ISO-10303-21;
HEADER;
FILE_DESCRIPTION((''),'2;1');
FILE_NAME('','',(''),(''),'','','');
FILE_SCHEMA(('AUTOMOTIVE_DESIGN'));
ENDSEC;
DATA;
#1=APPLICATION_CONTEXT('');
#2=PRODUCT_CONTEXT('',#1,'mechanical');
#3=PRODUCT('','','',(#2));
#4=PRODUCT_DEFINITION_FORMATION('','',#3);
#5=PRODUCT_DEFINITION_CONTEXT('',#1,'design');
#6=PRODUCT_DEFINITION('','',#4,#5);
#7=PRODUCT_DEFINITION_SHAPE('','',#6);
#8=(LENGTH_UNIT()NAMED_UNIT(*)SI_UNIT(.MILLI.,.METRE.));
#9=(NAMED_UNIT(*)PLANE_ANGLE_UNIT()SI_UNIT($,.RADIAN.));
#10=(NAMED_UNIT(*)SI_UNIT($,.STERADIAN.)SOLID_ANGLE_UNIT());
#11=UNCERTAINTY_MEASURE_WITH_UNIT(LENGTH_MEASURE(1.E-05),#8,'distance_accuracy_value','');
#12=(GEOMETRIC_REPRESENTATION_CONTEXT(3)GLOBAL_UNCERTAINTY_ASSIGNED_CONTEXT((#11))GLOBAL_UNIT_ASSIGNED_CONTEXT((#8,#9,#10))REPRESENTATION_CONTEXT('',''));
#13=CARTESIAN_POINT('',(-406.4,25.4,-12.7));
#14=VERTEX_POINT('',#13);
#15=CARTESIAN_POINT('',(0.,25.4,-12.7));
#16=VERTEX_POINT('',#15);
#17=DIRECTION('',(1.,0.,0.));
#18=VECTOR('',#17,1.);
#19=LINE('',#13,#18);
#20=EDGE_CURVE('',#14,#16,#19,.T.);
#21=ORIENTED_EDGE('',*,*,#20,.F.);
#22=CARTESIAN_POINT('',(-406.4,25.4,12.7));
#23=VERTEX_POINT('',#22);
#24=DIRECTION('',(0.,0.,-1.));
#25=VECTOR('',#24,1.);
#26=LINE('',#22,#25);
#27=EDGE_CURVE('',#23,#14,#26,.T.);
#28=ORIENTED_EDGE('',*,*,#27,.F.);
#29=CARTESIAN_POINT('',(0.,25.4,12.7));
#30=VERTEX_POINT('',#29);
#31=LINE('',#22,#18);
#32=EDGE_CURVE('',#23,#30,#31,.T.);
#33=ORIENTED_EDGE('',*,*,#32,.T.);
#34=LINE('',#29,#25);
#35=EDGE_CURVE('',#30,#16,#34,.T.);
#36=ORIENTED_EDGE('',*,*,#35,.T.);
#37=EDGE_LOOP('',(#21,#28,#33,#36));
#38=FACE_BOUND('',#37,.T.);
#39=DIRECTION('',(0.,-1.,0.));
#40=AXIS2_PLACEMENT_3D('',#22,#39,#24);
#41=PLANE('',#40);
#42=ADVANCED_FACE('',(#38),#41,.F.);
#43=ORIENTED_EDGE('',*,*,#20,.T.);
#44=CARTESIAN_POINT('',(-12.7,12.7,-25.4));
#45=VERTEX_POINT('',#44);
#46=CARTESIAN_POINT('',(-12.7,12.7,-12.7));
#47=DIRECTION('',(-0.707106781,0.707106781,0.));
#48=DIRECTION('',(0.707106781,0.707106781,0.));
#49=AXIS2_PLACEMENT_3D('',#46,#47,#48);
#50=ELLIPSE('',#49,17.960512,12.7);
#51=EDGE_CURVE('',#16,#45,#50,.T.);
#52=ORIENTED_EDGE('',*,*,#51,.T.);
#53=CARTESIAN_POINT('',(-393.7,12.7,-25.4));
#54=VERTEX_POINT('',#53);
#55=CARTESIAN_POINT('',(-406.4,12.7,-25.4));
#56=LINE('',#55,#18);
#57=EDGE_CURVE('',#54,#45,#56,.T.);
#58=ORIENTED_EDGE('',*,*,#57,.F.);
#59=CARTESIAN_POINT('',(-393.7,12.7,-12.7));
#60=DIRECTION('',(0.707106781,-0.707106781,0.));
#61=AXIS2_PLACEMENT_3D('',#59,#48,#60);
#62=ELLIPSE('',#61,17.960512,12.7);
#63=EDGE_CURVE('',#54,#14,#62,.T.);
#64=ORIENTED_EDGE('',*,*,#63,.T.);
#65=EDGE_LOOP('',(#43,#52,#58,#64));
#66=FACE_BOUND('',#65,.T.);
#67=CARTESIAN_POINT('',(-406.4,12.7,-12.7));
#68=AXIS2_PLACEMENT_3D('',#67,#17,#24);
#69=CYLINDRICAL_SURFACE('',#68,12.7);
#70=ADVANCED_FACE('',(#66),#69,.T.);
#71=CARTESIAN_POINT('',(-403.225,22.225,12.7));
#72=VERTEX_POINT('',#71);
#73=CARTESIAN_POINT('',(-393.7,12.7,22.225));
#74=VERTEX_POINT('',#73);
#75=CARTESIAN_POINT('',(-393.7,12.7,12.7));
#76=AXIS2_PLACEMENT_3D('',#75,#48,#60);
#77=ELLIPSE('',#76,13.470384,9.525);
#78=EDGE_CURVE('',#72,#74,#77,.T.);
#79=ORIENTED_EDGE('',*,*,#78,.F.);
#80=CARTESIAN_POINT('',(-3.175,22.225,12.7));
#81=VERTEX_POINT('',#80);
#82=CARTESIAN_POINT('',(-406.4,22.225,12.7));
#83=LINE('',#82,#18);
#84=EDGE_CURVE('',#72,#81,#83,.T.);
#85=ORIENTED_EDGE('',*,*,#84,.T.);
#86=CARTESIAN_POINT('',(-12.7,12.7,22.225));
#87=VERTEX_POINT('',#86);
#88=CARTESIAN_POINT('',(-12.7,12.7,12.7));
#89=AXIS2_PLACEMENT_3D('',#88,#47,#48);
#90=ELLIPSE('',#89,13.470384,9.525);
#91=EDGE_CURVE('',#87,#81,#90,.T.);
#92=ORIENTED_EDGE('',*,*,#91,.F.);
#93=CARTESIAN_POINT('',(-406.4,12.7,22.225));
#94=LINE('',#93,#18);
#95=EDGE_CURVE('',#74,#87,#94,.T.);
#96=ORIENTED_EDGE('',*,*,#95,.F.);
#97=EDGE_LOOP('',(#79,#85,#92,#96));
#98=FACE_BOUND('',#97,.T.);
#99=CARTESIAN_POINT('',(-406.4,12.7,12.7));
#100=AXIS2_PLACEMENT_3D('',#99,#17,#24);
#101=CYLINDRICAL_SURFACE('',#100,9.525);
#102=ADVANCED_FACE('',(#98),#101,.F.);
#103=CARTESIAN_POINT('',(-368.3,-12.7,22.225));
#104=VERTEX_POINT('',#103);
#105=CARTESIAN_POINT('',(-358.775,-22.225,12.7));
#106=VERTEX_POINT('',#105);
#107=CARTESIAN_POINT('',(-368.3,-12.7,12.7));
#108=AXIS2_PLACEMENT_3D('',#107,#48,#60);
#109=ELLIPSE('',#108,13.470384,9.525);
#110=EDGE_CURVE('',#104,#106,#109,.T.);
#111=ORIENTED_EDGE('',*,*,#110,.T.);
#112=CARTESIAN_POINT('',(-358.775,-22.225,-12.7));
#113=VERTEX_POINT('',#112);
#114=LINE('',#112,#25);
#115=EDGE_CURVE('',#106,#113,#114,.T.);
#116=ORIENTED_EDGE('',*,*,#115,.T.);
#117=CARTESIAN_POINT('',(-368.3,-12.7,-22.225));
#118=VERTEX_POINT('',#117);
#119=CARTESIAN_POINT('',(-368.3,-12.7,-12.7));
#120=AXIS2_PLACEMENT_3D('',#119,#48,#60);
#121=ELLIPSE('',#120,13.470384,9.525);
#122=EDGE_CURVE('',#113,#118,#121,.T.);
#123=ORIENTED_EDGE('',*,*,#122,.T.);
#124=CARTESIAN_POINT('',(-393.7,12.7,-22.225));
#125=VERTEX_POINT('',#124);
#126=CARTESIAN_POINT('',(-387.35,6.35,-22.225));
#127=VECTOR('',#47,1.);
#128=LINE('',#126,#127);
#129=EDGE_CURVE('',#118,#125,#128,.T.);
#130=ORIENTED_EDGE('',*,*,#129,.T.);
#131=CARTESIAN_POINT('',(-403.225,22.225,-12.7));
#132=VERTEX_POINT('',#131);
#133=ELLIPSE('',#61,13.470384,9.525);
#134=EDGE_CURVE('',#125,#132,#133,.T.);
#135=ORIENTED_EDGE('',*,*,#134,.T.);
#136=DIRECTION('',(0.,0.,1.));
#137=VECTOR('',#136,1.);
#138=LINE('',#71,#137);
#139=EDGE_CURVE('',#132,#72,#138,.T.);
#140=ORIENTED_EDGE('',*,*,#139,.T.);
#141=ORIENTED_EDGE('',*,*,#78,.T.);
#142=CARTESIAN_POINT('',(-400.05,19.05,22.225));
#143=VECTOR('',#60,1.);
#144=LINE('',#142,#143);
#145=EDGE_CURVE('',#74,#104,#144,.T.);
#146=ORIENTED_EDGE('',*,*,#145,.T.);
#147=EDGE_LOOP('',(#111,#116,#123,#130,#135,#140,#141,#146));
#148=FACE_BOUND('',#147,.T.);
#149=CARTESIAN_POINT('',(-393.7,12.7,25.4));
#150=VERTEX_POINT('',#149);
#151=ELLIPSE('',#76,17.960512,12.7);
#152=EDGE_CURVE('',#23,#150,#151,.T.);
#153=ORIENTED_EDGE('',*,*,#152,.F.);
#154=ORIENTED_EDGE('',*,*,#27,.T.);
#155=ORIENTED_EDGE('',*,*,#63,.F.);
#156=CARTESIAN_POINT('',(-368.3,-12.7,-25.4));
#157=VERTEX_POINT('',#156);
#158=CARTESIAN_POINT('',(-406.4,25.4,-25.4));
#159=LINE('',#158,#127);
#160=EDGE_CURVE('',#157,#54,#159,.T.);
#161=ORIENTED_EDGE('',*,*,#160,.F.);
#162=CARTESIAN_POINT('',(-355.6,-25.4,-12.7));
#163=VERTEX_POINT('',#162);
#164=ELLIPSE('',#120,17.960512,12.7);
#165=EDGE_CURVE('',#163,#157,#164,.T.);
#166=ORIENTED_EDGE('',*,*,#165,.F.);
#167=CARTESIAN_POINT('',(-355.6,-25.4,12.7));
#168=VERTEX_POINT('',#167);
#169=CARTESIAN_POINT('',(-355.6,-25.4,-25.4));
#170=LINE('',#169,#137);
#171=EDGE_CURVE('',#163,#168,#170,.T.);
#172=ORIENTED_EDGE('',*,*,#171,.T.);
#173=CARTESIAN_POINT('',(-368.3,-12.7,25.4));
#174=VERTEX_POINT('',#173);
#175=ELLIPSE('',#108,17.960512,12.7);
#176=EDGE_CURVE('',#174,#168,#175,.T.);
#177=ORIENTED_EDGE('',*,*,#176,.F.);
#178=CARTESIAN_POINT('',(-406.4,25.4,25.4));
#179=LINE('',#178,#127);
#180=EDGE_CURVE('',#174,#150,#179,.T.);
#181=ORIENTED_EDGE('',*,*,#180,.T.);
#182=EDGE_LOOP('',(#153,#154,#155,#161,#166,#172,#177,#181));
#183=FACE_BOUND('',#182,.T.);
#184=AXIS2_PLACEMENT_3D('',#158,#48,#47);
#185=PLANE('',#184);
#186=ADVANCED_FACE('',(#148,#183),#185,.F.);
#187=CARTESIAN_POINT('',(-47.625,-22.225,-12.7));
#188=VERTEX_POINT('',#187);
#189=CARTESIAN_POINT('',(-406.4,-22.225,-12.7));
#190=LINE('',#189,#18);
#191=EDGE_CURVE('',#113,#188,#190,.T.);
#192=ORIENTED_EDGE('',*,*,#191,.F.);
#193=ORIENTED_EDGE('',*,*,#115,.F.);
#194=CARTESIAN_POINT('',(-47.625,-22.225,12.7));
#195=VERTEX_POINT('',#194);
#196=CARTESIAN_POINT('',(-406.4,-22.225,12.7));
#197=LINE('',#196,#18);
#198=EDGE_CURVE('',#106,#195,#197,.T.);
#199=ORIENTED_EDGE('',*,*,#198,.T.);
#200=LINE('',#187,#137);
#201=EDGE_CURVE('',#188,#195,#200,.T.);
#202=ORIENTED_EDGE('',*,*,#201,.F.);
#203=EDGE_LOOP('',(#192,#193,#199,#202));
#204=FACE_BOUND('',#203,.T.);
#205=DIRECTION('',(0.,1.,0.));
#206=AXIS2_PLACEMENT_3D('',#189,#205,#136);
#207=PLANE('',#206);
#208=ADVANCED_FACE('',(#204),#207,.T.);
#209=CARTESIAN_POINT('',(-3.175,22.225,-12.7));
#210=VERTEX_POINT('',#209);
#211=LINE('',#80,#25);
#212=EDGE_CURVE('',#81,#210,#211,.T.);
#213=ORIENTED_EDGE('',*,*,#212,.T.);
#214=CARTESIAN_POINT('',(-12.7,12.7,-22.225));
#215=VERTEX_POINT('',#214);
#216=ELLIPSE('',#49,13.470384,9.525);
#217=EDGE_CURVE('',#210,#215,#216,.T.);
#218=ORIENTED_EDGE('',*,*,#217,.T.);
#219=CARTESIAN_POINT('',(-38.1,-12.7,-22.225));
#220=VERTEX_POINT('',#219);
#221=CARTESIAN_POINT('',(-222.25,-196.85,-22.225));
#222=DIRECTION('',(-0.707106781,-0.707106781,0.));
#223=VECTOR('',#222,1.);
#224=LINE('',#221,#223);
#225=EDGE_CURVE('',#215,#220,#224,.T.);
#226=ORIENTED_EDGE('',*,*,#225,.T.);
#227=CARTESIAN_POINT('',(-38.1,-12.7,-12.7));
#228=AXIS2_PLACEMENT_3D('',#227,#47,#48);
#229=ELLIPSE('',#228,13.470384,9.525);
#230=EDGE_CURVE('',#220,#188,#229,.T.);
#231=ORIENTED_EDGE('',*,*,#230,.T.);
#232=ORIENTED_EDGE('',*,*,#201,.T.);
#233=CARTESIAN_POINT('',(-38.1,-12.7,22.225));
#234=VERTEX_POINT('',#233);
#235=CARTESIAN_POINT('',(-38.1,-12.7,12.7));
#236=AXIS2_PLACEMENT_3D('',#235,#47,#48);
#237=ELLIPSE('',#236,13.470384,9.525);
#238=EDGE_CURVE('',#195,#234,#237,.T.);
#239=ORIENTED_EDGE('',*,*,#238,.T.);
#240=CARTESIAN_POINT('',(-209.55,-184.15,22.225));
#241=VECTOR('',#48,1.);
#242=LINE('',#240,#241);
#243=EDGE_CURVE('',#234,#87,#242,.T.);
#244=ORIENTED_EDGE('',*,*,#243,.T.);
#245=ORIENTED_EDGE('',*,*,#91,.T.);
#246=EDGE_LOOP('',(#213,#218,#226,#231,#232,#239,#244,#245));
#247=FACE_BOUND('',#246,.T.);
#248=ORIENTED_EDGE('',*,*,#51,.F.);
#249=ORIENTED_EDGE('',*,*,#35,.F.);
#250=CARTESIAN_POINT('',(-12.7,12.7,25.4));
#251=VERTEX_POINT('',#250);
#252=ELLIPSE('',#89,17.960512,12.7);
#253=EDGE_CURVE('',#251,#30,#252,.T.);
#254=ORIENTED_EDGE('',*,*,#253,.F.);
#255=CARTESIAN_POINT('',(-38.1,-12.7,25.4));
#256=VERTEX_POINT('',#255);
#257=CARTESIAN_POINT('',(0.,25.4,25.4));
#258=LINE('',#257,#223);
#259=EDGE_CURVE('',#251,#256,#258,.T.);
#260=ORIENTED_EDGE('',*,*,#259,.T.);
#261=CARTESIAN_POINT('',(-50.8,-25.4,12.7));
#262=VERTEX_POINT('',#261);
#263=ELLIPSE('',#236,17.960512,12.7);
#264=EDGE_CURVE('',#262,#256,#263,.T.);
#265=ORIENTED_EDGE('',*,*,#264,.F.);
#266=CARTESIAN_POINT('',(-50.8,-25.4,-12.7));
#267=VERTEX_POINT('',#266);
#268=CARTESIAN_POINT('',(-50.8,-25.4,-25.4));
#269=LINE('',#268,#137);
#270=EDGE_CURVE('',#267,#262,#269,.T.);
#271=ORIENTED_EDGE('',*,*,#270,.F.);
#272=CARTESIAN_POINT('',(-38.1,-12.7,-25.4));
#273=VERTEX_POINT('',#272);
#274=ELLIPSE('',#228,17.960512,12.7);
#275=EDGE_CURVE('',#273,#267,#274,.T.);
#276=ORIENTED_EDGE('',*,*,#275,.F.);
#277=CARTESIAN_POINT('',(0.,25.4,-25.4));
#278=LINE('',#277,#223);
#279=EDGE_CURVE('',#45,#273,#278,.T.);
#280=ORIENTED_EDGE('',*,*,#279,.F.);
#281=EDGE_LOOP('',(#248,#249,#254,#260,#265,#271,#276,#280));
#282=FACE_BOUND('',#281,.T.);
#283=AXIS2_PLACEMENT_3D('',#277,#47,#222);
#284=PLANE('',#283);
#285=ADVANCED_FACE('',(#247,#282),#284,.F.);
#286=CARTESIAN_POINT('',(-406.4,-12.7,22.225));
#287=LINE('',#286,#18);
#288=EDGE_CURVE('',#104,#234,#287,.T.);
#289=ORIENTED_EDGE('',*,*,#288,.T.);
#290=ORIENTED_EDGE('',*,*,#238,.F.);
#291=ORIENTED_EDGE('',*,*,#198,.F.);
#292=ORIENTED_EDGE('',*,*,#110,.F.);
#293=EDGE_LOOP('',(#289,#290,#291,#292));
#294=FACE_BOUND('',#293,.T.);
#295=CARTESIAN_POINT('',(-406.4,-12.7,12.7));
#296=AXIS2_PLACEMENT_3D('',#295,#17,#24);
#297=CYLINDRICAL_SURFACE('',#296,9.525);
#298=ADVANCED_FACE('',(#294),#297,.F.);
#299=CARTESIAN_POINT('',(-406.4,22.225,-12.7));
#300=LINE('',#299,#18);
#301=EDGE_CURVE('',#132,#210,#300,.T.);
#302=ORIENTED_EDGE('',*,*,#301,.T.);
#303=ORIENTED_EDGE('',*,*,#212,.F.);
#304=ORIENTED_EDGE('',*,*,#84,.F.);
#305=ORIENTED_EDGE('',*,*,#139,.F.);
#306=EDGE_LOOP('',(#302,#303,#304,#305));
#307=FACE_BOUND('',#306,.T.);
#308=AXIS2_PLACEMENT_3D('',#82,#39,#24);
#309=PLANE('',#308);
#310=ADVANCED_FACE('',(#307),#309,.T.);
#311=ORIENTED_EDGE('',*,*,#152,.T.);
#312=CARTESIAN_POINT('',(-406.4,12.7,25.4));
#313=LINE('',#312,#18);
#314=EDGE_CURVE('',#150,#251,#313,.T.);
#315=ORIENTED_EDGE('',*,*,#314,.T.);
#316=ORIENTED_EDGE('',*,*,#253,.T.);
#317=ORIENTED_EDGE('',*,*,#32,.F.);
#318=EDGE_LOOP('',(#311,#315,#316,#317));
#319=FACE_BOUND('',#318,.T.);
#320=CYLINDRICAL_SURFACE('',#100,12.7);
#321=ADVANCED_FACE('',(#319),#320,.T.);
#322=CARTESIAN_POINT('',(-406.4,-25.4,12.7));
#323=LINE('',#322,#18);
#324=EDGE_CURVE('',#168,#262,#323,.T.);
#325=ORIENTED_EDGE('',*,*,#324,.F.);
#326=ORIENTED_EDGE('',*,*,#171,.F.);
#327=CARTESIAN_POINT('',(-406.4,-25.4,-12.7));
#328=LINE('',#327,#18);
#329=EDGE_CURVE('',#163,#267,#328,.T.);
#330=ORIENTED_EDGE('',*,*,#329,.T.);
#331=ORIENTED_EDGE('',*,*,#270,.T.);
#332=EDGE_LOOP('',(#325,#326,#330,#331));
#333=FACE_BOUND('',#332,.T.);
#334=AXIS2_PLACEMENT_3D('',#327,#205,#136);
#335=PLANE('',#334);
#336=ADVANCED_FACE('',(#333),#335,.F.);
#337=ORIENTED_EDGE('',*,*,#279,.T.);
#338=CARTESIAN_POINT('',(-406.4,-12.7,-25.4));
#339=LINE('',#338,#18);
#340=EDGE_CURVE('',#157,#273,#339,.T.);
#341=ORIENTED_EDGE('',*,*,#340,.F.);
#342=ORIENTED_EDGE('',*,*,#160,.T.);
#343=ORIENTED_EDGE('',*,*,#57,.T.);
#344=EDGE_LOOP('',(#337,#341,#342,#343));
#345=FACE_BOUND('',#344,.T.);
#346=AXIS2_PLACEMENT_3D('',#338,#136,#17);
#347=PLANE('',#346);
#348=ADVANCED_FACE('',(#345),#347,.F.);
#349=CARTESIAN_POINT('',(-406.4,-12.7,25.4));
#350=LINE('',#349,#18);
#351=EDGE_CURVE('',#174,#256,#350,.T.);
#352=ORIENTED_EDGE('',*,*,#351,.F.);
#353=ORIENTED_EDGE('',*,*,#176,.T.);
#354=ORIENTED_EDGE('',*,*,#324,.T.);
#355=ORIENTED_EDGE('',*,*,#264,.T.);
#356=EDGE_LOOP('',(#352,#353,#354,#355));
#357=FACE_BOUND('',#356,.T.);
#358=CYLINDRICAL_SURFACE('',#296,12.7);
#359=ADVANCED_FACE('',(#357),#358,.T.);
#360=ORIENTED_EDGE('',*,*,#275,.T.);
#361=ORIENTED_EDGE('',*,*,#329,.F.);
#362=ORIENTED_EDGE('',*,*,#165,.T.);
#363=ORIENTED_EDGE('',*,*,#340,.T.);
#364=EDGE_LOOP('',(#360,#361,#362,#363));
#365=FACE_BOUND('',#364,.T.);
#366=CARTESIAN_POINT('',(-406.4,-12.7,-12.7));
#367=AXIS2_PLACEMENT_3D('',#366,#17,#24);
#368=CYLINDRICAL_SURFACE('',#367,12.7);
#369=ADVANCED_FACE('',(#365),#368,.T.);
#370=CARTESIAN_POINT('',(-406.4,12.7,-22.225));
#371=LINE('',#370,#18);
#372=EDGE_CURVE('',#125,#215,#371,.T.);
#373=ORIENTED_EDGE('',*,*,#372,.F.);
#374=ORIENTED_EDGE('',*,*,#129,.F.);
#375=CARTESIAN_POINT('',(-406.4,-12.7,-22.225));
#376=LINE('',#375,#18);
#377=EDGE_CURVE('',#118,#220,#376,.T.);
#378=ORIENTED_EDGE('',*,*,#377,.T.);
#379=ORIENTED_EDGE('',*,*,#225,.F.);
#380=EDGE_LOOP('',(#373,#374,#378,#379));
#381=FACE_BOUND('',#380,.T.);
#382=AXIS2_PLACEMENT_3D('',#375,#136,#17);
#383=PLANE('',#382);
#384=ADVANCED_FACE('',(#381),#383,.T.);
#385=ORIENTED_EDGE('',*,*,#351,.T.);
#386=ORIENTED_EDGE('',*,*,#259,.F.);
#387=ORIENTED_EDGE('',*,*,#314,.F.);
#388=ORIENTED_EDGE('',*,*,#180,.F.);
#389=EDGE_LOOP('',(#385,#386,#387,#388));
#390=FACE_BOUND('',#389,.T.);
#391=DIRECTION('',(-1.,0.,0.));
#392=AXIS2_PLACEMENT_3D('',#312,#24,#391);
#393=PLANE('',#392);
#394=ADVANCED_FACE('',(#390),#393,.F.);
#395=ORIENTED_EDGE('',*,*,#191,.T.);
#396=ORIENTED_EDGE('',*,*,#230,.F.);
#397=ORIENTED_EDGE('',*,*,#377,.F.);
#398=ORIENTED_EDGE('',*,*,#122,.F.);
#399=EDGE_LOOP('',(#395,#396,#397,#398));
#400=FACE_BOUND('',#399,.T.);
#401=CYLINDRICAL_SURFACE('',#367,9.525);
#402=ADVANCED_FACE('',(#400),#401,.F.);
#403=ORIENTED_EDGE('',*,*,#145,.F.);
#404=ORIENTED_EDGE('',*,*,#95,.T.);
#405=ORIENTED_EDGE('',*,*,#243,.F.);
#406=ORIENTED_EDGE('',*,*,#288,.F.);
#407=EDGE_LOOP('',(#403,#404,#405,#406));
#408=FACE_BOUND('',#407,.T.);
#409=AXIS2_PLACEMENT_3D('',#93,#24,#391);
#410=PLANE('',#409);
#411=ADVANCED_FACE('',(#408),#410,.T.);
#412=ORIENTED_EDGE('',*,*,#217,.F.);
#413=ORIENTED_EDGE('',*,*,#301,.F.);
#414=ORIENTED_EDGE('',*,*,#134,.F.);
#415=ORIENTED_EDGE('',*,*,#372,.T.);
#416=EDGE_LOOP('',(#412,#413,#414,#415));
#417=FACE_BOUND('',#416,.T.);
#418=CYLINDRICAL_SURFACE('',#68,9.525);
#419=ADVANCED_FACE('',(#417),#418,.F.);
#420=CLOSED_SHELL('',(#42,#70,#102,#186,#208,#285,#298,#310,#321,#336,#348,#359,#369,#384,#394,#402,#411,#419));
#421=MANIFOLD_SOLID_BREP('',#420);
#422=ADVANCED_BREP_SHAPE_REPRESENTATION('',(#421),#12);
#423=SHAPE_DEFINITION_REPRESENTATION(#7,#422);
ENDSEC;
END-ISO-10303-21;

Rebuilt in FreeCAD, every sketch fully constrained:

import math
import FreeCAD as App
import Part
import Sketcher
from FreeCAD import Vector
Q = App.Units.Quantity

doc = App.newDocument("Part")
body = doc.addObject("PartDesign::Body", "Body")

# Sketch on YZ plane
sketch1 = body.newObject("Sketcher::SketchObject", "Sketch")
sketch1.AttachmentSupport = (doc.getObject("YZ_Plane"), [""])
sketch1.MapMode = "FlatFace"
sketch1.addGeometry([
    Part.LineSegment(Vector(-25, -13, 0), Vector(-25, 13, 0)),  # 0
    Part.ArcOfCircle(Part.Circle(Vector(-13, 13, 0), Vector(0, 0, 1), 13), math.radians(90), math.radians(180)),  # 1
    Part.LineSegment(Vector(-13, 25, 0), Vector(13, 25, 0)),  # 2
    Part.ArcOfCircle(Part.Circle(Vector(13, 13, 0), Vector(0, 0, 1), 13), math.radians(0), math.radians(90)),  # 3
    Part.LineSegment(Vector(25, 13, 0), Vector(25, -13, 0)),  # 4
    Part.ArcOfCircle(Part.Circle(Vector(13, -13, 0), Vector(0, 0, 1), 13), math.radians(-90), math.radians(0)),  # 5
    Part.LineSegment(Vector(13, -25, 0), Vector(-13, -25, 0)),  # 6
    Part.ArcOfCircle(Part.Circle(Vector(-13, -13, 0), Vector(0, 0, 1), 13), math.radians(180), math.radians(270)),  # 7
    Part.LineSegment(Vector(-22, 13, 0), Vector(-22, -13, 0)),  # 8
    Part.ArcOfCircle(Part.Circle(Vector(-13, -13, 0), Vector(0, 0, 1), 10), math.radians(180), math.radians(270)),  # 9
    Part.LineSegment(Vector(-13, -22, 0), Vector(13, -22, 0)),  # 10
    Part.ArcOfCircle(Part.Circle(Vector(13, -13, 0), Vector(0, 0, 1), 10), math.radians(-90), math.radians(0)),  # 11
    Part.LineSegment(Vector(22, -13, 0), Vector(22, 13, 0)),  # 12
    Part.ArcOfCircle(Part.Circle(Vector(13, 13, 0), Vector(0, 0, 1), 10), math.radians(0), math.radians(90)),  # 13
    Part.LineSegment(Vector(13, 22, 0), Vector(-13, 22, 0)),  # 14
    Part.ArcOfCircle(Part.Circle(Vector(-13, 13, 0), Vector(0, 0, 1), 10), math.radians(90), math.radians(180)),  # 15
], False)
sketch1.addConstraint([
    Sketcher.Constraint("Tangent", 0, 2, 1, 2),
    Sketcher.Constraint("Tangent", 1, 1, 2, 1),
    Sketcher.Constraint("Tangent", 2, 2, 3, 2),
    Sketcher.Constraint("Tangent", 3, 1, 4, 1),
    Sketcher.Constraint("Tangent", 4, 2, 5, 2),
    Sketcher.Constraint("Tangent", 5, 1, 6, 1),
    Sketcher.Constraint("Tangent", 6, 2, 7, 2),
    Sketcher.Constraint("Tangent", 7, 1, 0, 1),
    Sketcher.Constraint("Tangent", 8, 2, 9, 1),
    Sketcher.Constraint("Tangent", 9, 2, 10, 1),
    Sketcher.Constraint("Tangent", 10, 2, 11, 1),
    Sketcher.Constraint("Tangent", 11, 2, 12, 1),
    Sketcher.Constraint("Tangent", 12, 2, 13, 1),
    Sketcher.Constraint("Tangent", 13, 2, 14, 1),
    Sketcher.Constraint("Tangent", 14, 2, 15, 1),
    Sketcher.Constraint("Tangent", 15, 2, 8, 1),
    Sketcher.Constraint("Vertical", 0),
    Sketcher.Constraint("Horizontal", 2),
    Sketcher.Constraint("Vertical", 4),
    Sketcher.Constraint("Horizontal", 6),
    Sketcher.Constraint("Vertical", 8),
    Sketcher.Constraint("Horizontal", 10),
    Sketcher.Constraint("Vertical", 12),
    Sketcher.Constraint("Horizontal", 14),
    Sketcher.Constraint("Coincident", 9, 3, 7, 3),
    Sketcher.Constraint("Coincident", 11, 3, 5, 3),
    Sketcher.Constraint("Coincident", 13, 3, 3, 3),
    Sketcher.Constraint("Equal", 1, 3),
    Sketcher.Constraint("Equal", 3, 5),
    Sketcher.Constraint("Equal", 5, 7),
    Sketcher.Constraint("Equal", 13, 15),
    Sketcher.Constraint("Symmetric", 1, 3, 5, 3, -1, 1),
    Sketcher.Constraint("Equal", 14, 0),
    Sketcher.Constraint("Radius", 1, Q("0.5 in")),
    Sketcher.Constraint("DistanceX", 2, 1, 2, 2, Q("1 in")),
    Sketcher.Constraint("Radius", 9, Q("0.375 in")),
])
pad1 = body.newObject("PartDesign::Pad", "Pad")
pad1.Profile = sketch1
pad1.Length = Q("16 in")
pad1.Reversed = True

# Sketch on XY plane
sketch2 = body.newObject("Sketcher::SketchObject", "Sketch001")
sketch2.AttachmentSupport = (doc.getObject("XY_Plane"), [""])
sketch2.MapMode = "FlatFace"
sketch2.AttachmentOffset = App.Placement(Vector(0, 0, 1 * 25.4), App.Rotation())
sketch2.addGeometry([
    Part.LineSegment(Vector(-356, -25, 0), Vector(-406, 25, 0)),  # 0
    Part.LineSegment(Vector(-406, 25, 0), Vector(-406, -25, 0)),  # 1
    Part.LineSegment(Vector(-406, -25, 0), Vector(-356, -25, 0)),  # 2
    Part.LineSegment(Vector(0, 25, 0), Vector(-51, -25, 0)),  # 3
    Part.LineSegment(Vector(-51, -25, 0), Vector(0, -25, 0)),  # 4
    Part.LineSegment(Vector(0, -25, 0), Vector(0, 25, 0)),  # 5
], False)
sketch2.addConstraint([
    Sketcher.Constraint("Coincident", 0, 2, 1, 1),
    Sketcher.Constraint("Coincident", 1, 2, 2, 1),
    Sketcher.Constraint("Coincident", 2, 2, 0, 1),
    Sketcher.Constraint("Coincident", 3, 2, 4, 1),
    Sketcher.Constraint("Coincident", 4, 2, 5, 1),
    Sketcher.Constraint("Coincident", 5, 2, 3, 1),
    Sketcher.Constraint("Vertical", 1),
    Sketcher.Constraint("Horizontal", 2),
    Sketcher.Constraint("Horizontal", 4),
    Sketcher.Constraint("Vertical", 5),
    Sketcher.Constraint("Symmetric", 4, 2, 5, 2, -1, 1),
    Sketcher.Constraint("Perpendicular", 0, 3),
    Sketcher.Constraint("Horizontal", 2, 2, 3, 2),
    Sketcher.Constraint("Horizontal", 0, 2, 5, 2),
    Sketcher.Constraint("Equal", 2, 4),
    Sketcher.Constraint("DistanceX", 2, 1, 2, 2, Q("2 in")),
    Sketcher.Constraint("DistanceX", 0, 2, -1, 1, Q("16 in")),
])
pocket1 = body.newObject("PartDesign::Pocket", "Pocket")
pocket1.Profile = sketch2
pocket1.Type = "ThroughAll"

doc.recompute()
